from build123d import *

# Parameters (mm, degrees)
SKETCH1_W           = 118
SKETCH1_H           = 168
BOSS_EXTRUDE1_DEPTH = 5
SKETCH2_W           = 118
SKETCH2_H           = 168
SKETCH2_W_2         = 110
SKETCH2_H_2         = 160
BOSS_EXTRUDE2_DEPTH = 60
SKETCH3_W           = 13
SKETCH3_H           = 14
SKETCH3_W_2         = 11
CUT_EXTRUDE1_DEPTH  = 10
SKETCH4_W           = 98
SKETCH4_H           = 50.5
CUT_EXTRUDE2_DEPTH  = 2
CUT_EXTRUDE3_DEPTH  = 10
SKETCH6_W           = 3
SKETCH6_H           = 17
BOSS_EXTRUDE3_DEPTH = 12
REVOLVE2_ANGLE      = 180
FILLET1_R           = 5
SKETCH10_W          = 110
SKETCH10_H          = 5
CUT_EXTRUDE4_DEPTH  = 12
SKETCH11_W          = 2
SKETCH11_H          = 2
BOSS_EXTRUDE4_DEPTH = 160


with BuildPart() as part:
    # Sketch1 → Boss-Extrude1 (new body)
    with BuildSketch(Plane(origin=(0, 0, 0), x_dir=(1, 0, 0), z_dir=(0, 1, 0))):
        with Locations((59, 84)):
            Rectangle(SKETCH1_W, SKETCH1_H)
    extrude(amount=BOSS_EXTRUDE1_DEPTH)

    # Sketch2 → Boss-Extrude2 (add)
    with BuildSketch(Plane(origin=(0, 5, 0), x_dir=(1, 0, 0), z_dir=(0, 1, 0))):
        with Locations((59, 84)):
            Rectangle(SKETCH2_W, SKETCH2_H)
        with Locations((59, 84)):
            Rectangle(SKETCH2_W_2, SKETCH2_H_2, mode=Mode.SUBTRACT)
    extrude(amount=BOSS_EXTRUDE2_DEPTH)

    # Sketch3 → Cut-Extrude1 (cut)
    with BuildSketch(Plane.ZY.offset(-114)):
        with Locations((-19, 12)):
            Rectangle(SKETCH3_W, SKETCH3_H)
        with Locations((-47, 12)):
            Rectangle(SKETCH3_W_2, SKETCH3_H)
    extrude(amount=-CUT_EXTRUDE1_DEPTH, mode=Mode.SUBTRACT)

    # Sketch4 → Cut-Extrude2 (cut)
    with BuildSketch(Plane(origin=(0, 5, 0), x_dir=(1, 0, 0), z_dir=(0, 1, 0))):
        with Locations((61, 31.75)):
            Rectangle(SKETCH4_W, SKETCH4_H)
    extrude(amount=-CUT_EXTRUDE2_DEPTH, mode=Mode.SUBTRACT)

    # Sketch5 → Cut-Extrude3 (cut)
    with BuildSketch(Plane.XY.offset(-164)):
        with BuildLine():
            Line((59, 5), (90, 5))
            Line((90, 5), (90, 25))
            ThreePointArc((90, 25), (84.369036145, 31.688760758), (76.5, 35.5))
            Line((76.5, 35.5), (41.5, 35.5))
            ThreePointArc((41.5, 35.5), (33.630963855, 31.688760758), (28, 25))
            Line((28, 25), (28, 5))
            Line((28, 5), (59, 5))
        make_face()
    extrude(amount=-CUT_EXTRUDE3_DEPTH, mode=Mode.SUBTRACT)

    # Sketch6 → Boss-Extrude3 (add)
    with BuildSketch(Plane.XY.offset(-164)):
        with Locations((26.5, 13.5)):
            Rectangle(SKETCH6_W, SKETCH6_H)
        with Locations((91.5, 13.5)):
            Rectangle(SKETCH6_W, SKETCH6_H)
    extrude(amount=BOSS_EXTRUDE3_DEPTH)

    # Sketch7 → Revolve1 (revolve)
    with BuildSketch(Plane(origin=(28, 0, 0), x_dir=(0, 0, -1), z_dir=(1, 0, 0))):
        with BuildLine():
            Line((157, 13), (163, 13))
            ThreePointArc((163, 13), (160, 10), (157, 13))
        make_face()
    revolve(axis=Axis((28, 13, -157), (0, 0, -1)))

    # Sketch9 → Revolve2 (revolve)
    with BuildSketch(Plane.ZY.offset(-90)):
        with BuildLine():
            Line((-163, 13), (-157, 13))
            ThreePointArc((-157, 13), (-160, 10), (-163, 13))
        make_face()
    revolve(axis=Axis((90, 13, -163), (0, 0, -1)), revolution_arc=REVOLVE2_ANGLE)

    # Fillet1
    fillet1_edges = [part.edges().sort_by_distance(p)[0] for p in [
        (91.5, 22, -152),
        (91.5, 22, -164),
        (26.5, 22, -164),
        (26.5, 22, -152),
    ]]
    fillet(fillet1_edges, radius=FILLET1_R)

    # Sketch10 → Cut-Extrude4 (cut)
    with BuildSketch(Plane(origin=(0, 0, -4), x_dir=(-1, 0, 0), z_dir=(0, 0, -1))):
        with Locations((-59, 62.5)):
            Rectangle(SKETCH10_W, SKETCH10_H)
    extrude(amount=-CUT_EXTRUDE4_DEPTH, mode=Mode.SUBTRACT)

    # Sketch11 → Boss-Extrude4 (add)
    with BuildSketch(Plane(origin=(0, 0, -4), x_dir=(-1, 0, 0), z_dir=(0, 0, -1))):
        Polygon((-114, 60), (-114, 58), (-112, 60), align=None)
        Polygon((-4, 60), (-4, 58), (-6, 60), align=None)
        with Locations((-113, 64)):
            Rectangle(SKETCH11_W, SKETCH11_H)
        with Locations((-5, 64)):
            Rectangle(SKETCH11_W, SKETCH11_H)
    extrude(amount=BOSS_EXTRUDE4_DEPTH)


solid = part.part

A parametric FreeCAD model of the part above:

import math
import FreeCAD as App
import Part
import Sketcher
from FreeCAD import Vector


def edges_at(feature, points):
    """Names of the edges that pass closest to the given points."""
    edges = feature.Shape.Edges
    near = lambda p: min(range(len(edges)), key=lambda i: edges[i].distToShape(Part.Vertex(*p))[0])
    return sorted({f"Edge{near(p) + 1}" for p in points})

doc = App.newDocument("Part")
body = doc.addObject("PartDesign::Body", "Body")

# Sketch on XZ plane
sketch1 = body.newObject("Sketcher::SketchObject", "Sketch")
sketch1.AttachmentSupport = (doc.getObject("XZ_Plane"), [""])
sketch1.MapMode = "FlatFace"
sketch1.addGeometry([
    Part.LineSegment(Vector(0, -168, 0), Vector(0, 0, 0)),
    Part.LineSegment(Vector(0, 0, 0), Vector(118, 0, 0)),
    Part.LineSegment(Vector(118, 0, 0), Vector(118, -168, 0)),
    Part.LineSegment(Vector(118, -168, 0), Vector(0, -168, 0)),
], False)
sketch1.addConstraint([
    Sketcher.Constraint("Coincident", 0, 2, 1, 1),
    Sketcher.Constraint("Coincident", 1, 2, 2, 1),
    Sketcher.Constraint("Coincident", 2, 2, 3, 1),
    Sketcher.Constraint("Coincident", 3, 2, 0, 1),
    Sketcher.Constraint("Vertical", 0),
    Sketcher.Constraint("Horizontal", 1),
    Sketcher.Constraint("Vertical", 2),
    Sketcher.Constraint("Horizontal", 3),
    Sketcher.Constraint("Coincident", 0, 2, -1, 1),
    Sketcher.Constraint("DistanceX", 1, 1, 1, 2, 118.0),
    Sketcher.Constraint("DistanceY", 0, 1, 0, 2, 168.0),
])
pad1 = body.newObject("PartDesign::Pad", "Pad")
pad1.Profile = sketch1
pad1.Length = 5
pad1.Reversed = True

# Sketch on XZ plane
sketch2 = body.newObject("Sketcher::SketchObject", "Sketch001")
sketch2.AttachmentSupport = (doc.getObject("XZ_Plane"), [""])
sketch2.MapMode = "FlatFace"
sketch2.AttachmentOffset = App.Placement(Vector(0, 0, -5), App.Rotation())
sketch2.addGeometry([
    Part.LineSegment(Vector(0, -168, 0), Vector(0, 0, 0)),  # 0
    Part.LineSegment(Vector(0, 0, 0), Vector(118, 0, 0)),  # 1
    Part.LineSegment(Vector(118, 0, 0), Vector(118, -168, 0)),  # 2
    Part.LineSegment(Vector(118, -168, 0), Vector(0, -168, 0)),  # 3
    Part.LineSegment(Vector(114, -4, 0), Vector(4, -4, 0)),  # 4
    Part.LineSegment(Vector(4, -4, 0), Vector(4, -164, 0)),  # 5
    Part.LineSegment(Vector(4, -164, 0), Vector(114, -164, 0)),  # 6
    Part.LineSegment(Vector(114, -164, 0), Vector(114, -4, 0)),  # 7
], False)
sketch2.addConstraint([
    Sketcher.Constraint("Coincident", 0, 2, 1, 1),
    Sketcher.Constraint("Coincident", 1, 2, 2, 1),
    Sketcher.Constraint("Coincident", 2, 2, 3, 1),
    Sketcher.Constraint("Coincident", 3, 2, 0, 1),
    Sketcher.Constraint("Coincident", 4, 2, 5, 1),
    Sketcher.Constraint("Coincident", 5, 2, 6, 1),
    Sketcher.Constraint("Coincident", 6, 2, 7, 1),
    Sketcher.Constraint("Coincident", 7, 2, 4, 1),
    Sketcher.Constraint("Vertical", 0),
    Sketcher.Constraint("Horizontal", 1),
    Sketcher.Constraint("Vertical", 2),
    Sketcher.Constraint("Horizontal", 3),
    Sketcher.Constraint("Horizontal", 4),
    Sketcher.Constraint("Vertical", 5),
    Sketcher.Constraint("Horizontal", 6),
    Sketcher.Constraint("Vertical", 7),
    Sketcher.Constraint("Coincident", 0, 2, -1, 1),
    Sketcher.Constraint("DistanceX", 1, 1, 1, 2, 118.0),
    Sketcher.Constraint("DistanceX", 4, 2, 4, 1, 110.0),
    Sketcher.Constraint("DistanceY", 0, 1, 0, 2, 168.0),
    Sketcher.Constraint("DistanceY", 5, 2, 5, 1, 160.0),
    Sketcher.Constraint("DistanceX", -1, 1, 4, 2, 4.0),
    Sketcher.Constraint("DistanceY", 4, 2, -1, 1, 4.0),
])
pad2 = body.newObject("PartDesign::Pad", "Pad001")
pad2.Profile = sketch2
pad2.Length = 60
pad2.Reversed = True

# Sketch on YZ plane
sketch3 = body.newObject("Sketcher::SketchObject", "Sketch002")
sketch3.AttachmentSupport = (doc.getObject("YZ_Plane"), [""])
sketch3.MapMode = "FlatFace"
sketch3.AttachmentOffset = App.Placement(Vector(0, 0, 114), App.Rotation())
sketch3.addGeometry([
    Part.LineSegment(Vector(19, -25.5, 0), Vector(5, -25.5, 0)),  # 0
    Part.LineSegment(Vector(5, -25.5, 0), Vector(5, -12.5, 0)),  # 1
    Part.LineSegment(Vector(5, -12.5, 0), Vector(19, -12.5, 0)),  # 2
    Part.LineSegment(Vector(19, -12.5, 0), Vector(19, -25.5, 0)),  # 3
    Part.LineSegment(Vector(19, -52.5, 0), Vector(5, -52.5, 0)),  # 4
    Part.LineSegment(Vector(5, -52.5, 0), Vector(5, -41.5, 0)),  # 5
    Part.LineSegment(Vector(5, -41.5, 0), Vector(19, -41.5, 0)),  # 6
    Part.LineSegment(Vector(19, -41.5, 0), Vector(19, -52.5, 0)),  # 7
], False)
sketch3.addConstraint([
    Sketcher.Constraint("Coincident", 0, 2, 1, 1),
    Sketcher.Constraint("Coincident", 1, 2, 2, 1),
    Sketcher.Constraint("Coincident", 2, 2, 3, 1),
    Sketcher.Constraint("Coincident", 3, 2, 0, 1),
    Sketcher.Constraint("Coincident", 4, 2, 5, 1),
    Sketcher.Constraint("Coincident", 5, 2, 6, 1),
    Sketcher.Constraint("Coincident", 6, 2, 7, 1),
    Sketcher.Constraint("Coincident", 7, 2, 4, 1),
    Sketcher.Constraint("Horizontal", 0),
    Sketcher.Constraint("Vertical", 1),
    Sketcher.Constraint("Horizontal", 2),
    Sketcher.Constraint("Vertical", 3),
    Sketcher.Constraint("Horizontal", 4),
    Sketcher.Constraint("Vertical", 5),
    Sketcher.Constraint("Horizontal", 6),
    Sketcher.Constraint("Vertical", 7),
    Sketcher.Constraint("Vertical", 1, 2, 4, 2),
    Sketcher.Constraint("Vertical", 3, 2, 6, 2),
    Sketcher.Constraint("DistanceX", 0, 2, 0, 1, 14.0),
    Sketcher.Constraint("DistanceY", 1, 1, 1, 2, 13.0),
    Sketcher.Constraint("DistanceY", 5, 1, 5, 2, 11.0),
    Sketcher.Constraint("DistanceX", -1, 1, 0, 2, 5.0),
    Sketcher.Constraint("DistanceY", 4, 2, 0, 2, 27.0),
    Sketcher.Constraint("DistanceY", 0, 2, -1, 1, 25.5),
])
pocket1 = body.newObject("PartDesign::Pocket", "Pocket")
pocket1.Profile = sketch3
pocket1.Length = 10
pocket1.Reversed = True

# Sketch on XZ plane
sketch4 = body.newObject("Sketcher::SketchObject", "Sketch003")
sketch4.AttachmentSupport = (doc.getObject("XZ_Plane"), [""])
sketch4.MapMode = "FlatFace"
sketch4.AttachmentOffset = App.Placement(Vector(0, 0, -5), App.Rotation())
sketch4.addGeometry([
    Part.LineSegment(Vector(12, -57, 0), Vector(12, -6.5, 0)),
    Part.LineSegment(Vector(12, -6.5, 0), Vector(110, -6.5, 0)),
    Part.LineSegment(Vector(110, -6.5, 0), Vector(110, -57, 0)),
    Part.LineSegment(Vector(110, -57, 0), Vector(12, -57, 0)),
], False)
sketch4.addConstraint([
    Sketcher.Constraint("Coincident", 0, 2, 1, 1),
    Sketcher.Constraint("Coincident", 1, 2, 2, 1),
    Sketcher.Constraint("Coincident", 2, 2, 3, 1),
    Sketcher.Constraint("Coincident", 3, 2, 0, 1),
    Sketcher.Constraint("Vertical", 0),
    Sketcher.Constraint("Horizontal", 1),
    Sketcher.Constraint("Vertical", 2),
    Sketcher.Constraint("Horizontal", 3),
    Sketcher.Constraint("DistanceX", 1, 1, 1, 2, 98.0),
    Sketcher.Constraint("DistanceY", 0, 1, 0, 2, 50.5),
    Sketcher.Constraint("DistanceX", -1, 1, 0, 2, 12.0),
    Sketcher.Constraint("DistanceY", 2, 2, -1, 1, 57.0),
])
pocket2 = body.newObject("PartDesign::Pocket", "Pocket001")
pocket2.Profile = sketch4
pocket2.Length = 2
pocket2.Reversed = True

# Sketch on XY plane
sketch5 = body.newObject("Sketcher::SketchObject", "Sketch004")
sketch5.AttachmentSupport = (doc.getObject("XY_Plane"), [""])
sketch5.MapMode = "FlatFace"
sketch5.AttachmentOffset = App.Placement(Vector(0, 0, -164), App.Rotation())
sketch5.addGeometry([
    Part.LineSegment(Vector(90, 5, 0), Vector(90, 25, 0)),  # 0
    Part.ArcOfCircle(Part.Circle(Vector(71.494232, 15.135441, 0), Vector(0, 0, 1), 20.970764), math.radians(28.059989), math.radians(76.190044)),  # 1
    Part.LineSegment(Vector(76.5, 35.5, 0), Vector(41.5, 35.5, 0)),  # 2
    Part.ArcOfCircle(Part.Circle(Vector(46.505768, 15.135441, 0), Vector(0, 0, 1), 20.970764), math.radians(103.809956), math.radians(151.940011)),  # 3
    Part.LineSegment(Vector(28, 25, 0), Vector(28, 5, 0)),  # 4
    Part.LineSegment(Vector(28, 5, 0), Vector(90, 5, 0)),  # 5
], False)
sketch5.addConstraint([
    Sketcher.Constraint("Coincident", 0, 2, 1, 1),
    Sketcher.Constraint("Coincident", 1, 2, 2, 1),
    Sketcher.Constraint("Coincident", 2, 2, 3, 1),
    Sketcher.Constraint("Coincident", 3, 2, 4, 1),
    Sketcher.Constraint("Coincident", 4, 2, 5, 1),
    Sketcher.Constraint("Coincident", 5, 2, 0, 1),
    Sketcher.Constraint("Vertical", 0),
    Sketcher.Constraint("Horizontal", 2),
    Sketcher.Constraint("Vertical", 4),
    Sketcher.Constraint("Horizontal", 5),
    Sketcher.Constraint("Equal", 1, 3),
    Sketcher.Constraint("Horizontal", 1, 3, 3, 3),
    Sketcher.Constraint("Horizontal", 0, 2, 3, 2),
    Sketcher.Constraint("DistanceX", 2, 2, 2, 1, 35.0),
    Sketcher.Constraint("DistanceX", 5, 1, 5, 2, 62.0),
    Sketcher.Constraint("DistanceY", 0, 1, 0, 2, 20.0),
    Sketcher.Constraint("DistanceX", -1, 1, 0, 2, 90.0),
    Sketcher.Constraint("DistanceY", -1, 1, 0, 2, 25.0),
    Sketcher.Constraint("DistanceY", -1, 1, 1, 2, 35.5),
    Sketcher.Constraint("Radius", 1, 20.970764),
])
pocket3 = body.newObject("PartDesign::Pocket", "Pocket002")
pocket3.Profile = sketch5
pocket3.Length = 10

# Sketch on XY plane
sketch6 = body.newObject("Sketcher::SketchObject", "Sketch005")
sketch6.AttachmentSupport = (doc.getObject("XY_Plane"), [""])
sketch6.MapMode = "FlatFace"
sketch6.AttachmentOffset = App.Placement(Vector(0, 0, -164), App.Rotation())
sketch6.addGeometry([
    Part.LineSegment(Vector(25, 22, 0), Vector(25, 5, 0)),  # 0
    Part.LineSegment(Vector(25, 5, 0), Vector(28, 5, 0)),  # 1
    Part.LineSegment(Vector(28, 5, 0), Vector(28, 22, 0)),  # 2
    Part.LineSegment(Vector(28, 22, 0), Vector(25, 22, 0)),  # 3
    Part.LineSegment(Vector(90, 22, 0), Vector(90, 5, 0)),  # 4
    Part.LineSegment(Vector(90, 5, 0), Vector(93, 5, 0)),  # 5
    Part.LineSegment(Vector(93, 5, 0), Vector(93, 22, 0)),  # 6
    Part.LineSegment(Vector(93, 22, 0), Vector(90, 22, 0)),  # 7
], False)
sketch6.addConstraint([
    Sketcher.Constraint("Coincident", 0, 2, 1, 1),
    Sketcher.Constraint("Coincident", 1, 2, 2, 1),
    Sketcher.Constraint("Coincident", 2, 2, 3, 1),
    Sketcher.Constraint("Coincident", 3, 2, 0, 1),
    Sketcher.Constraint("Coincident", 4, 2, 5, 1),
    Sketcher.Constraint("Coincident", 5, 2, 6, 1),
    Sketcher.Constraint("Coincident", 6, 2, 7, 1),
    Sketcher.Constraint("Coincident", 7, 2, 4, 1),
    Sketcher.Constraint("Vertical", 0),
    Sketcher.Constraint("Horizontal", 1),
    Sketcher.Constraint("Vertical", 2),
    Sketcher.Constraint("Horizontal", 3),
    Sketcher.Constraint("Vertical", 4),
    Sketcher.Constraint("Horizontal", 5),
    Sketcher.Constraint("Vertical", 6),
    Sketcher.Constraint("Horizontal", 7),
    Sketcher.Constraint("Horizontal", 1, 2, 4, 2),
    Sketcher.Constraint("Horizontal", 3, 2, 6, 2),
    Sketcher.Constraint("Equal", 3, 5),
    Sketcher.Constraint("DistanceX", 1, 1, 1, 2, 3.0),
    Sketcher.Constraint("DistanceY", 0, 2, 0, 1, 17.0),
    Sketcher.Constraint("DistanceX", -1, 1, 0, 2, 25.0),
    Sketcher.Constraint("DistanceY", -1, 1, 0, 2, 5.0),
    Sketcher.Constraint("DistanceX", -1, 1, 4, 2, 90.0),
])
pad3 = body.newObject("PartDesign::Pad", "Pad002")
pad3.Profile = sketch6
pad3.Length = 12

# Sketch on YZ plane
sketch7 = body.newObject("Sketcher::SketchObject", "Sketch006")
sketch7.AttachmentSupport = (doc.getObject("YZ_Plane"), [""])
sketch7.MapMode = "FlatFace"
sketch7.AttachmentOffset = App.Placement(Vector(0, 0, 28), App.Rotation())
sketch7.addGeometry([
    Part.LineSegment(Vector(13, -163, 0), Vector(13, -157, 0)),
    Part.ArcOfCircle(Part.Circle(Vector(13, -160, 0), Vector(0, 0, 1), 3), math.radians(90), math.radians(270)),
], False)
sketch7.addGeometry(Part.LineSegment(Vector(13, -157, 0), Vector(13, -163, 0)), True)  # axis
sketch7.addConstraint([
    Sketcher.Constraint("Coincident", 0, 1, 1, 2),
    Sketcher.Constraint("Coincident", 1, 1, 0, 2),
    Sketcher.Constraint("Vertical", 0),
    Sketcher.Constraint("Vertical", 2),
    Sketcher.Constraint("Coincident", 2, 1, 1, 1),
    Sketcher.Constraint("Vertical", 1, 3, 0, 1),
    Sketcher.Constraint("Equal", 0, 2),
    Sketcher.Constraint("Radius", 1, 3.0),
    Sketcher.Constraint("DistanceX", -1, 1, 1, 3, 13.0),
    Sketcher.Constraint("DistanceY", 1, 3, -1, 1, 160.0),
])
revolution = body.newObject("PartDesign::Revolution", "Revolution")
revolution.Profile = sketch7
revolution.ReferenceAxis = (sketch7, ["Axis0"])
revolution.Angle = 360

# Sketch on YZ plane
sketch8 = body.newObject("Sketcher::SketchObject", "Sketch007")
sketch8.AttachmentSupport = (doc.getObject("YZ_Plane"), [""])
sketch8.MapMode = "FlatFace"
sketch8.AttachmentOffset = App.Placement(Vector(0, 0, 90), App.Rotation())
sketch8.addGeometry([
    Part.LineSegment(Vector(13, -157, 0), Vector(13, -163, 0)),
    Part.ArcOfCircle(Part.Circle(Vector(13, -160, 0), Vector(0, 0, 1), 3), math.radians(90), math.radians(270)),
], False)
sketch8.addGeometry(Part.LineSegment(Vector(13, -157, 0), Vector(13, -163, 0)), True)  # axis
sketch8.addConstraint([
    Sketcher.Constraint("Coincident", 0, 1, 1, 1),
    Sketcher.Constraint("Coincident", 1, 2, 0, 2),
    Sketcher.Constraint("Vertical", 0),
    Sketcher.Constraint("Vertical", 2),
    Sketcher.Constraint("Coincident", 2, 1, 0, 1),
    Sketcher.Constraint("Vertical", 1, 3, 0, 1),
    Sketcher.Constraint("Equal", 0, 2),
    Sketcher.Constraint("Radius", 1, 3.0),
    Sketcher.Constraint("DistanceX", -1, 1, 1, 3, 13.0),
    Sketcher.Constraint("DistanceY", 1, 3, -1, 1, 160.0),
])
revolution2 = body.newObject("PartDesign::Revolution", "Revolution001")
revolution2.Profile = sketch8
revolution2.ReferenceAxis = (sketch8, ["Axis0"])
revolution2.Angle = 180
doc.recompute()

fillet = body.newObject("PartDesign::Fillet", "Fillet")
fillet.Base = (revolution2, edges_at(revolution2, [
    (91.5, 22, -152),
    (91.5, 22, -164),
    (26.5, 22, -164),
    (26.5, 22, -152),
]))
fillet.Radius = 5

# Sketch on XY plane
sketch9 = body.newObject("Sketcher::SketchObject", "Sketch008")
sketch9.AttachmentSupport = (doc.getObject("XY_Plane"), [""])
sketch9.MapMode = "FlatFace"
sketch9.AttachmentOffset = App.Placement(Vector(0, 0, -4), App.Rotation())
sketch9.addGeometry([
    Part.LineSegment(Vector(114, 65, 0), Vector(114, 60, 0)),
    Part.LineSegment(Vector(114, 60, 0), Vector(4, 60, 0)),
    Part.LineSegment(Vector(4, 60, 0), Vector(4, 65, 0)),
    Part.LineSegment(Vector(4, 65, 0), Vector(114, 65, 0)),
], False)
sketch9.addConstraint([
    Sketcher.Constraint("Coincident", 0, 2, 1, 1),
    Sketcher.Constraint("Coincident", 1, 2, 2, 1),
    Sketcher.Constraint("Coincident", 2, 2, 3, 1),
    Sketcher.Constraint("Coincident", 3, 2, 0, 1),
    Sketcher.Constraint("Vertical", 0),
    Sketcher.Constraint("Horizontal", 1),
    Sketcher.Constraint("Vertical", 2),
    Sketcher.Constraint("Horizontal", 3),
    Sketcher.Constraint("DistanceX", 1, 2, 1, 1, 110.0),
    Sketcher.Constraint("DistanceY", 0, 2, 0, 1, 5.0),
    Sketcher.Constraint("DistanceX", -1, 1, 0, 2, 114.0),
    Sketcher.Constraint("DistanceY", -1, 1, 0, 2, 60.0),
])
pocket4 = body.newObject("PartDesign::Pocket", "Pocket003")
pocket4.Profile = sketch9
pocket4.Length = 12
pocket4.Reversed = True

# Sketch on XY plane
sketch10 = body.newObject("Sketcher::SketchObject", "Sketch009")
sketch10.AttachmentSupport = (doc.getObject("XY_Plane"), [""])
sketch10.MapMode = "FlatFace"
sketch10.AttachmentOffset = App.Placement(Vector(0, 0, -4), App.Rotation())
sketch10.addGeometry([
    Part.LineSegment(Vector(114, 60, 0), Vector(114, 58, 0)),  # 0
    Part.LineSegment(Vector(114, 58, 0), Vector(112, 60, 0)),  # 1
    Part.LineSegment(Vector(112, 60, 0), Vector(114, 60, 0)),  # 2
    Part.LineSegment(Vector(4, 58, 0), Vector(4, 60, 0)),  # 3
    Part.LineSegment(Vector(4, 60, 0), Vector(6, 60, 0)),  # 4
    Part.LineSegment(Vector(6, 60, 0), Vector(4, 58, 0)),  # 5
    Part.LineSegment(Vector(114, 65, 0), Vector(114, 63, 0)),  # 6
    Part.LineSegment(Vector(114, 63, 0), Vector(112, 63, 0)),  # 7
    Part.LineSegment(Vector(112, 63, 0), Vector(112, 65, 0)),  # 8
    Part.LineSegment(Vector(112, 65, 0), Vector(114, 65, 0)),  # 9
    Part.LineSegment(Vector(6, 65, 0), Vector(6, 63, 0)),  # 10
    Part.LineSegment(Vector(6, 63, 0), Vector(4, 63, 0)),  # 11
    Part.LineSegment(Vector(4, 63, 0), Vector(4, 65, 0)),  # 12
    Part.LineSegment(Vector(4, 65, 0), Vector(6, 65, 0)),  # 13
], False)
sketch10.addConstraint([
    Sketcher.Constraint("Coincident", 0, 2, 1, 1),
    Sketcher.Constraint("Coincident", 1, 2, 2, 1),
    Sketcher.Constraint("Coincident", 2, 2, 0, 1),
    Sketcher.Constraint("Coincident", 3, 2, 4, 1),
    Sketcher.Constraint("Coincident", 4, 2, 5, 1),
    Sketcher.Constraint("Coincident", 5, 2, 3, 1),
    Sketcher.Constraint("Coincident", 6, 2, 7, 1),
    Sketcher.Constraint("Coincident", 7, 2, 8, 1),
    Sketcher.Constraint("Coincident", 8, 2, 9, 1),
    Sketcher.Constraint("Coincident", 9, 2, 6, 1),
    Sketcher.Constraint("Coincident", 10, 2, 11, 1),
    Sketcher.Constraint("Coincident", 11, 2, 12, 1),
    Sketcher.Constraint("Coincident", 12, 2, 13, 1),
    Sketcher.Constraint("Coincident", 13, 2, 10, 1),
    Sketcher.Constraint("Vertical", 0),
    Sketcher.Constraint("Horizontal", 2),
    Sketcher.Constraint("Vertical", 3),
    Sketcher.Constraint("Horizontal", 4),
    Sketcher.Constraint("Vertical", 6),
    Sketcher.Constraint("Horizontal", 7),
    Sketcher.Constraint("Vertical", 8),
    Sketcher.Constraint("Horizontal", 9),
    Sketcher.Constraint("Vertical", 10),
    Sketcher.Constraint("Horizontal", 11),
    Sketcher.Constraint("Vertical", 12),
    Sketcher.Constraint("Horizontal", 13),
    Sketcher.Constraint("Perpendicular", 1, 5),
    Sketcher.Constraint("Horizontal", 2, 2, 3, 2),
    Sketcher.Constraint("Horizontal", 0, 2, 5, 2),
    Sketcher.Constraint("Horizontal", 7, 2, 10, 2),
    Sketcher.Constraint("Horizontal", 9, 2, 12, 2),
    Sketcher.Constraint("Vertical", 2, 2, 6, 2),
    Sketcher.Constraint("Vertical", 1, 2, 7, 2),
    Sketcher.Constraint("Vertical", 4, 2, 10, 2),
    Sketcher.Constraint("Vertical", 5, 2, 11, 2),
    Sketcher.Constraint("Equal", 2, 4),
    Sketcher.Constraint("Equal", 3, 6),
    Sketcher.Constraint("DistanceX", 2, 1, 2, 2, 2.0),
    Sketcher.Constraint("DistanceX", -1, 1, 0, 2, 114.0),
    Sketcher.Constraint("DistanceY", -1, 1, 0, 2, 58.0),
    Sketcher.Constraint("DistanceX", -1, 1, 3, 2, 4.0),
    Sketcher.Constraint("DistanceY", -1, 1, 6, 2, 63.0),
])
pad4 = body.newObject("PartDesign::Pad", "Pad003")
pad4.Profile = sketch10
pad4.Length = 160
pad4.Reversed = True

doc.recompute()
